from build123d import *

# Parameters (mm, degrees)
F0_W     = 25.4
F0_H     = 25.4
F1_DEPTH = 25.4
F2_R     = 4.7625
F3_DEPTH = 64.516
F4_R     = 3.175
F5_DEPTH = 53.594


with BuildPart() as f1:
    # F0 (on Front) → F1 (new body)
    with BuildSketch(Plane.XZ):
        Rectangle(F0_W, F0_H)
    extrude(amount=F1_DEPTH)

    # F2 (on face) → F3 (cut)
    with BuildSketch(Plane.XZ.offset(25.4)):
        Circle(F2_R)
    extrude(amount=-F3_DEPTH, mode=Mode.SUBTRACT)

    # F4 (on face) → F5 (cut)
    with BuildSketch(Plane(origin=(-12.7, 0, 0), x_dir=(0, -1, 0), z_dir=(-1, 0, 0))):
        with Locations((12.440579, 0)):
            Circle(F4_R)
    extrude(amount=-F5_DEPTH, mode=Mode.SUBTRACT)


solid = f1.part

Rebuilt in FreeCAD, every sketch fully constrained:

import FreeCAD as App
import Part
import Sketcher

V = App.Vector
Q = App.Units.Quantity


def add_polygon(sketch, points):
    """Adds a closed chain of lines whose ends are joined by coincident constraints."""
    first, n = sketch.GeometryCount, len(points)
    for a, b in zip(points, points[1:] + points[:1]):
        sketch.addGeometry(Part.LineSegment(App.Vector(*a, 0), App.Vector(*b, 0)), False)
    for i in range(n):
        sketch.addConstraint(Sketcher.Constraint("Coincident", first + i, 2, first + (i + 1) % n, 1))

doc = App.newDocument("Part")
params = doc.addObject("Spreadsheet::Sheet", "Params")
for row, (alias, value) in enumerate([
    ("sketch1_width", "1 in"),
    ("pad1_length", "1 in"),
    ("sketch2_diameter", "0.375 in"),
    ("pocket1_length", "2.54 in"),
    ("sketch3_diameter", "0.25 in"),
    ("pocket2_length", "2.11 in"),
], start=1):
    params.set(f"A{row}", alias)
    params.set(f"B{row}", "=" + value)
    params.setAlias(f"B{row}", alias)

body = doc.addObject("PartDesign::Body", "Body")

# Sketch on XZ plane
sketch1 = doc.addObject("Sketcher::SketchObject", "Sketch")
body.addObject(sketch1)
sketch1.AttachmentSupport = (doc.XZ_Plane, [""])
sketch1.MapMode = "FlatFace"
add_polygon(sketch1, [(-13, 13), (-13, -13), (13, -13), (13, 13)])  # lines 0-3
sketch1.addConstraint(Sketcher.Constraint("Vertical", 0))
sketch1.addConstraint(Sketcher.Constraint("Horizontal", 1))
sketch1.addConstraint(Sketcher.Constraint("Vertical", 2))
sketch1.addConstraint(Sketcher.Constraint("Horizontal", 3))
sketch1.addConstraint(Sketcher.Constraint("Symmetric", 0, 2, 2, 2, -1, 1))
sketch1.addConstraint(Sketcher.Constraint("Equal", 3, 0))
sketch1.addConstraint(Sketcher.Constraint("DistanceX", 1, 1, 1, 2, Q("1 in")))
sketch1.setExpression("Constraints[10]", "Params.sketch1_width")
pad1 = doc.addObject("PartDesign::Pad", "Pad")
body.addObject(pad1)
pad1.Profile = sketch1
pad1.setExpression("Length", "Params.pad1_length")

# Sketch on XZ plane
sketch2 = doc.addObject("Sketcher::SketchObject", "Sketch001")
body.addObject(sketch2)
sketch2.AttachmentSupport = (doc.XZ_Plane, [""])
sketch2.MapMode = "FlatFace"
sketch2.AttachmentOffset = App.Placement(V(0, 0, 1 * 25.4), App.Rotation())
sketch2.addGeometry(Part.Circle(V(0, 0, 0), V(0, 0, 1), 4.8), False)
sketch2.addConstraint(Sketcher.Constraint("Coincident", 0, 3, -1, 1))
sketch2.addConstraint(Sketcher.Constraint("Diameter", 0, Q("0.375 in")))
sketch2.setExpression("Constraints[1]", "Params.sketch2_diameter")
pocket1 = doc.addObject("PartDesign::Pocket", "Pocket")
body.addObject(pocket1)
pocket1.Profile = sketch2
pocket1.setExpression("Length", "Params.pocket1_length")

# Sketch on YZ plane
sketch3 = doc.addObject("Sketcher::SketchObject", "Sketch002")
body.addObject(sketch3)
sketch3.AttachmentSupport = (doc.YZ_Plane, [""])
sketch3.MapMode = "FlatFace"
sketch3.AttachmentOffset = App.Placement(V(0, 0, -0.5 * 25.4), App.Rotation())
sketch3.addGeometry(Part.Circle(V(-12.4, 0, 0), V(0, 0, 1), 3.2), False)
sketch3.addConstraint(Sketcher.Constraint("PointOnObject", 0, 3, -1))
sketch3.addConstraint(Sketcher.Constraint("Diameter", 0, Q("0.25 in")))
sketch3.addConstraint(Sketcher.Constraint("DistanceX", 0, 3, -1, 1, 12.440579))
sketch3.setExpression("Constraints[1]", "Params.sketch3_diameter")
pocket2 = doc.addObject("PartDesign::Pocket", "Pocket001")
body.addObject(pocket2)
pocket2.Profile = sketch3
pocket2.setExpression("Length", "Params.pocket2_length")
pocket2.Reversed = True

doc.recompute()
